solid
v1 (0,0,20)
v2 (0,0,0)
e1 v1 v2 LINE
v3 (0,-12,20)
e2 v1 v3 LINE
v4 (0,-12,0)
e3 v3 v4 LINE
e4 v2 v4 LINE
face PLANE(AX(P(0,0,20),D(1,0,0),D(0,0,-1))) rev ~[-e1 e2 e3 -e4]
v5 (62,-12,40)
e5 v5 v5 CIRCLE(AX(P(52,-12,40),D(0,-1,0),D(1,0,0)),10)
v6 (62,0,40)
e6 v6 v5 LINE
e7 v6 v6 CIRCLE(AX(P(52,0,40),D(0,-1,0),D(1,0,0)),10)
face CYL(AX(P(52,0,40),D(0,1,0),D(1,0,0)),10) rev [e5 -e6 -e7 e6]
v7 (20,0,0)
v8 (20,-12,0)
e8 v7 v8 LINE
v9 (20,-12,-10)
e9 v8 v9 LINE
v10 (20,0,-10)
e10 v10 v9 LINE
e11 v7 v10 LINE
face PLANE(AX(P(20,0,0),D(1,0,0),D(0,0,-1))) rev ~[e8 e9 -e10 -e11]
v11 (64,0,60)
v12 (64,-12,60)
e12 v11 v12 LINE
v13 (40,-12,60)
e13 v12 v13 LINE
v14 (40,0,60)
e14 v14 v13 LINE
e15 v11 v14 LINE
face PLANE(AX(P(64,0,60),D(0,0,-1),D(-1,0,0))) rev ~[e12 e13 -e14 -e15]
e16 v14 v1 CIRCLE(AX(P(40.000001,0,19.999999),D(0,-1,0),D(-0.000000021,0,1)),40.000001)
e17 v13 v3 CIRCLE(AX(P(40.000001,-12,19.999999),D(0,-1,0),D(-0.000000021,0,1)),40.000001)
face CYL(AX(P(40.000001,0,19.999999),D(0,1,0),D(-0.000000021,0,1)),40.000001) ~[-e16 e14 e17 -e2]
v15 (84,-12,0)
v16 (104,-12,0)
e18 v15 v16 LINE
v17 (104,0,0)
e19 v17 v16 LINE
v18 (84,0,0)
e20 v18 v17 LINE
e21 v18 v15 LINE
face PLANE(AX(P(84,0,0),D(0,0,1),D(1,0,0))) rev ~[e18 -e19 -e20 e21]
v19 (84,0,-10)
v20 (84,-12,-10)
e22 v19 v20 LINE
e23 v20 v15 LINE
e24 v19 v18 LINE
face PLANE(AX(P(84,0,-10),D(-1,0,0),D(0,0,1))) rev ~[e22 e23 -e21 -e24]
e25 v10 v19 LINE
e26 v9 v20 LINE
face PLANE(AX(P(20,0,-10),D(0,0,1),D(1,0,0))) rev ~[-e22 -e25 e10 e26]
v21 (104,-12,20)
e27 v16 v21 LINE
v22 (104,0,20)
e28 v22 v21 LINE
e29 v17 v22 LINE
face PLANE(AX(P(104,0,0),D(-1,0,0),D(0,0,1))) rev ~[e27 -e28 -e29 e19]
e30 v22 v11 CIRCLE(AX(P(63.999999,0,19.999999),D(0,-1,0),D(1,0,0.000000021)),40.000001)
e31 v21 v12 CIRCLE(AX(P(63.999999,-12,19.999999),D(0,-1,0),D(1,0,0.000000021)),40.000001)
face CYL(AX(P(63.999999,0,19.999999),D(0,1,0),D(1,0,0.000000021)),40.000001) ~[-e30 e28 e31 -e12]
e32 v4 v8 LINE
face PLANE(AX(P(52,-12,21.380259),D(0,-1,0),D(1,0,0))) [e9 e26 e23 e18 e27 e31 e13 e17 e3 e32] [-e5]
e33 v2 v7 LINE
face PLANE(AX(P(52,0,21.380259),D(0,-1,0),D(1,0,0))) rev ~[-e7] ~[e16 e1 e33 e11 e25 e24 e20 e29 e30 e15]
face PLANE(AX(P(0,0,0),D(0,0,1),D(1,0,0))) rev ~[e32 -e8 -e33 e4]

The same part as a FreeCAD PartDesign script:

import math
import FreeCAD as App
import Part
import Sketcher
from FreeCAD import Vector
Q = App.Units.Quantity

doc = App.newDocument("Part")
body = doc.addObject("PartDesign::Body", "Body")

sketch1 = doc.addObject("Sketcher::SketchObject", "Sketch")
body.addObject(sketch1)
sketch1.AttachmentSupport = (doc.XZ_Plane, [""])
sketch1.MapMode = "FlatFace"
sketch1.addGeometry([
    Part.LineSegment(Vector(0, 20, 0), Vector(0, 0, 0)),
    Part.LineSegment(Vector(0, 0, 0), Vector(20, 0, 0)),
    Part.LineSegment(Vector(20, 0, 0), Vector(20, -10, 0)),
    Part.LineSegment(Vector(20, -10, 0), Vector(84, -10, 0)),
    Part.LineSegment(Vector(84, -10, 0), Vector(84, 0, 0)),
    Part.LineSegment(Vector(84, 0, 0), Vector(104, 0, 0)),
    Part.LineSegment(Vector(104, 0, 0), Vector(104, 20, 0)),
    Part.ArcOfCircle(Part.Circle(Vector(64, 20, 0), Vector(0, 0, 1), 40), math.radians(0), math.radians(90)),
    Part.LineSegment(Vector(64, 60, 0), Vector(40, 60, 0)),
    Part.ArcOfCircle(Part.Circle(Vector(40, 20, 0), Vector(0, 0, 1), 40), math.radians(90), math.radians(180)),
    Part.Circle(Vector(52, 40, 0), Vector(0, 0, 1), 10),
], False)
sketch1.addConstraint([
    Sketcher.Constraint("Coincident", 0, 2, 1, 1),
    Sketcher.Constraint("Coincident", 1, 2, 2, 1),
    Sketcher.Constraint("Coincident", 2, 2, 3, 1),
    Sketcher.Constraint("Coincident", 3, 2, 4, 1),
    Sketcher.Constraint("Coincident", 4, 2, 5, 1),
    Sketcher.Constraint("Coincident", 5, 2, 6, 1),
    Sketcher.Constraint("Tangent", 6, 2, 7, 1),
    Sketcher.Constraint("Tangent", 7, 2, 8, 1),
    Sketcher.Constraint("Tangent", 8, 2, 9, 1),
    Sketcher.Constraint("Tangent", 9, 2, 0, 1),
    Sketcher.Constraint("Vertical", 0),
    Sketcher.Constraint("Horizontal", 1),
    Sketcher.Constraint("Vertical", 2),
    Sketcher.Constraint("Horizontal", 3),
    Sketcher.Constraint("Vertical", 4),
    Sketcher.Constraint("Horizontal", 5),
    Sketcher.Constraint("Vertical", 6),
    Sketcher.Constraint("Horizontal", 8),
    Sketcher.Constraint("Coincident", 0, 2, -1, 1),
    Sketcher.Constraint("Equal", 7, 9),
    Sketcher.Constraint("PointOnObject", 4, 2, -1),
    Sketcher.Constraint("Equal", 1, 5),
    Sketcher.Constraint("Equal", 5, 0),
    Sketcher.Constraint("Diameter", 10, Q("20 mm")),
    Sketcher.Constraint("Radius", 7, Q("40.000001 mm")),
    Sketcher.Constraint("DistanceX", 1, 1, 1, 2, Q("20 mm")),
    Sketcher.Constraint("DistanceX", 3, 1, 3, 2, Q("64 mm")),
    Sketcher.Constraint("DistanceY", 2, 2, 2, 1, Q("10 mm")),
    Sketcher.Constraint("DistanceX", -1, 1, 10, 3, Q("52 mm")),
    Sketcher.Constraint("DistanceY", -1, 1, 10, 3, Q("40 mm")),
])
pad1 = doc.addObject("PartDesign::Pad", "Pad")
body.addObject(pad1)
pad1.Profile = sketch1
pad1.Length = 12

doc.recompute()
